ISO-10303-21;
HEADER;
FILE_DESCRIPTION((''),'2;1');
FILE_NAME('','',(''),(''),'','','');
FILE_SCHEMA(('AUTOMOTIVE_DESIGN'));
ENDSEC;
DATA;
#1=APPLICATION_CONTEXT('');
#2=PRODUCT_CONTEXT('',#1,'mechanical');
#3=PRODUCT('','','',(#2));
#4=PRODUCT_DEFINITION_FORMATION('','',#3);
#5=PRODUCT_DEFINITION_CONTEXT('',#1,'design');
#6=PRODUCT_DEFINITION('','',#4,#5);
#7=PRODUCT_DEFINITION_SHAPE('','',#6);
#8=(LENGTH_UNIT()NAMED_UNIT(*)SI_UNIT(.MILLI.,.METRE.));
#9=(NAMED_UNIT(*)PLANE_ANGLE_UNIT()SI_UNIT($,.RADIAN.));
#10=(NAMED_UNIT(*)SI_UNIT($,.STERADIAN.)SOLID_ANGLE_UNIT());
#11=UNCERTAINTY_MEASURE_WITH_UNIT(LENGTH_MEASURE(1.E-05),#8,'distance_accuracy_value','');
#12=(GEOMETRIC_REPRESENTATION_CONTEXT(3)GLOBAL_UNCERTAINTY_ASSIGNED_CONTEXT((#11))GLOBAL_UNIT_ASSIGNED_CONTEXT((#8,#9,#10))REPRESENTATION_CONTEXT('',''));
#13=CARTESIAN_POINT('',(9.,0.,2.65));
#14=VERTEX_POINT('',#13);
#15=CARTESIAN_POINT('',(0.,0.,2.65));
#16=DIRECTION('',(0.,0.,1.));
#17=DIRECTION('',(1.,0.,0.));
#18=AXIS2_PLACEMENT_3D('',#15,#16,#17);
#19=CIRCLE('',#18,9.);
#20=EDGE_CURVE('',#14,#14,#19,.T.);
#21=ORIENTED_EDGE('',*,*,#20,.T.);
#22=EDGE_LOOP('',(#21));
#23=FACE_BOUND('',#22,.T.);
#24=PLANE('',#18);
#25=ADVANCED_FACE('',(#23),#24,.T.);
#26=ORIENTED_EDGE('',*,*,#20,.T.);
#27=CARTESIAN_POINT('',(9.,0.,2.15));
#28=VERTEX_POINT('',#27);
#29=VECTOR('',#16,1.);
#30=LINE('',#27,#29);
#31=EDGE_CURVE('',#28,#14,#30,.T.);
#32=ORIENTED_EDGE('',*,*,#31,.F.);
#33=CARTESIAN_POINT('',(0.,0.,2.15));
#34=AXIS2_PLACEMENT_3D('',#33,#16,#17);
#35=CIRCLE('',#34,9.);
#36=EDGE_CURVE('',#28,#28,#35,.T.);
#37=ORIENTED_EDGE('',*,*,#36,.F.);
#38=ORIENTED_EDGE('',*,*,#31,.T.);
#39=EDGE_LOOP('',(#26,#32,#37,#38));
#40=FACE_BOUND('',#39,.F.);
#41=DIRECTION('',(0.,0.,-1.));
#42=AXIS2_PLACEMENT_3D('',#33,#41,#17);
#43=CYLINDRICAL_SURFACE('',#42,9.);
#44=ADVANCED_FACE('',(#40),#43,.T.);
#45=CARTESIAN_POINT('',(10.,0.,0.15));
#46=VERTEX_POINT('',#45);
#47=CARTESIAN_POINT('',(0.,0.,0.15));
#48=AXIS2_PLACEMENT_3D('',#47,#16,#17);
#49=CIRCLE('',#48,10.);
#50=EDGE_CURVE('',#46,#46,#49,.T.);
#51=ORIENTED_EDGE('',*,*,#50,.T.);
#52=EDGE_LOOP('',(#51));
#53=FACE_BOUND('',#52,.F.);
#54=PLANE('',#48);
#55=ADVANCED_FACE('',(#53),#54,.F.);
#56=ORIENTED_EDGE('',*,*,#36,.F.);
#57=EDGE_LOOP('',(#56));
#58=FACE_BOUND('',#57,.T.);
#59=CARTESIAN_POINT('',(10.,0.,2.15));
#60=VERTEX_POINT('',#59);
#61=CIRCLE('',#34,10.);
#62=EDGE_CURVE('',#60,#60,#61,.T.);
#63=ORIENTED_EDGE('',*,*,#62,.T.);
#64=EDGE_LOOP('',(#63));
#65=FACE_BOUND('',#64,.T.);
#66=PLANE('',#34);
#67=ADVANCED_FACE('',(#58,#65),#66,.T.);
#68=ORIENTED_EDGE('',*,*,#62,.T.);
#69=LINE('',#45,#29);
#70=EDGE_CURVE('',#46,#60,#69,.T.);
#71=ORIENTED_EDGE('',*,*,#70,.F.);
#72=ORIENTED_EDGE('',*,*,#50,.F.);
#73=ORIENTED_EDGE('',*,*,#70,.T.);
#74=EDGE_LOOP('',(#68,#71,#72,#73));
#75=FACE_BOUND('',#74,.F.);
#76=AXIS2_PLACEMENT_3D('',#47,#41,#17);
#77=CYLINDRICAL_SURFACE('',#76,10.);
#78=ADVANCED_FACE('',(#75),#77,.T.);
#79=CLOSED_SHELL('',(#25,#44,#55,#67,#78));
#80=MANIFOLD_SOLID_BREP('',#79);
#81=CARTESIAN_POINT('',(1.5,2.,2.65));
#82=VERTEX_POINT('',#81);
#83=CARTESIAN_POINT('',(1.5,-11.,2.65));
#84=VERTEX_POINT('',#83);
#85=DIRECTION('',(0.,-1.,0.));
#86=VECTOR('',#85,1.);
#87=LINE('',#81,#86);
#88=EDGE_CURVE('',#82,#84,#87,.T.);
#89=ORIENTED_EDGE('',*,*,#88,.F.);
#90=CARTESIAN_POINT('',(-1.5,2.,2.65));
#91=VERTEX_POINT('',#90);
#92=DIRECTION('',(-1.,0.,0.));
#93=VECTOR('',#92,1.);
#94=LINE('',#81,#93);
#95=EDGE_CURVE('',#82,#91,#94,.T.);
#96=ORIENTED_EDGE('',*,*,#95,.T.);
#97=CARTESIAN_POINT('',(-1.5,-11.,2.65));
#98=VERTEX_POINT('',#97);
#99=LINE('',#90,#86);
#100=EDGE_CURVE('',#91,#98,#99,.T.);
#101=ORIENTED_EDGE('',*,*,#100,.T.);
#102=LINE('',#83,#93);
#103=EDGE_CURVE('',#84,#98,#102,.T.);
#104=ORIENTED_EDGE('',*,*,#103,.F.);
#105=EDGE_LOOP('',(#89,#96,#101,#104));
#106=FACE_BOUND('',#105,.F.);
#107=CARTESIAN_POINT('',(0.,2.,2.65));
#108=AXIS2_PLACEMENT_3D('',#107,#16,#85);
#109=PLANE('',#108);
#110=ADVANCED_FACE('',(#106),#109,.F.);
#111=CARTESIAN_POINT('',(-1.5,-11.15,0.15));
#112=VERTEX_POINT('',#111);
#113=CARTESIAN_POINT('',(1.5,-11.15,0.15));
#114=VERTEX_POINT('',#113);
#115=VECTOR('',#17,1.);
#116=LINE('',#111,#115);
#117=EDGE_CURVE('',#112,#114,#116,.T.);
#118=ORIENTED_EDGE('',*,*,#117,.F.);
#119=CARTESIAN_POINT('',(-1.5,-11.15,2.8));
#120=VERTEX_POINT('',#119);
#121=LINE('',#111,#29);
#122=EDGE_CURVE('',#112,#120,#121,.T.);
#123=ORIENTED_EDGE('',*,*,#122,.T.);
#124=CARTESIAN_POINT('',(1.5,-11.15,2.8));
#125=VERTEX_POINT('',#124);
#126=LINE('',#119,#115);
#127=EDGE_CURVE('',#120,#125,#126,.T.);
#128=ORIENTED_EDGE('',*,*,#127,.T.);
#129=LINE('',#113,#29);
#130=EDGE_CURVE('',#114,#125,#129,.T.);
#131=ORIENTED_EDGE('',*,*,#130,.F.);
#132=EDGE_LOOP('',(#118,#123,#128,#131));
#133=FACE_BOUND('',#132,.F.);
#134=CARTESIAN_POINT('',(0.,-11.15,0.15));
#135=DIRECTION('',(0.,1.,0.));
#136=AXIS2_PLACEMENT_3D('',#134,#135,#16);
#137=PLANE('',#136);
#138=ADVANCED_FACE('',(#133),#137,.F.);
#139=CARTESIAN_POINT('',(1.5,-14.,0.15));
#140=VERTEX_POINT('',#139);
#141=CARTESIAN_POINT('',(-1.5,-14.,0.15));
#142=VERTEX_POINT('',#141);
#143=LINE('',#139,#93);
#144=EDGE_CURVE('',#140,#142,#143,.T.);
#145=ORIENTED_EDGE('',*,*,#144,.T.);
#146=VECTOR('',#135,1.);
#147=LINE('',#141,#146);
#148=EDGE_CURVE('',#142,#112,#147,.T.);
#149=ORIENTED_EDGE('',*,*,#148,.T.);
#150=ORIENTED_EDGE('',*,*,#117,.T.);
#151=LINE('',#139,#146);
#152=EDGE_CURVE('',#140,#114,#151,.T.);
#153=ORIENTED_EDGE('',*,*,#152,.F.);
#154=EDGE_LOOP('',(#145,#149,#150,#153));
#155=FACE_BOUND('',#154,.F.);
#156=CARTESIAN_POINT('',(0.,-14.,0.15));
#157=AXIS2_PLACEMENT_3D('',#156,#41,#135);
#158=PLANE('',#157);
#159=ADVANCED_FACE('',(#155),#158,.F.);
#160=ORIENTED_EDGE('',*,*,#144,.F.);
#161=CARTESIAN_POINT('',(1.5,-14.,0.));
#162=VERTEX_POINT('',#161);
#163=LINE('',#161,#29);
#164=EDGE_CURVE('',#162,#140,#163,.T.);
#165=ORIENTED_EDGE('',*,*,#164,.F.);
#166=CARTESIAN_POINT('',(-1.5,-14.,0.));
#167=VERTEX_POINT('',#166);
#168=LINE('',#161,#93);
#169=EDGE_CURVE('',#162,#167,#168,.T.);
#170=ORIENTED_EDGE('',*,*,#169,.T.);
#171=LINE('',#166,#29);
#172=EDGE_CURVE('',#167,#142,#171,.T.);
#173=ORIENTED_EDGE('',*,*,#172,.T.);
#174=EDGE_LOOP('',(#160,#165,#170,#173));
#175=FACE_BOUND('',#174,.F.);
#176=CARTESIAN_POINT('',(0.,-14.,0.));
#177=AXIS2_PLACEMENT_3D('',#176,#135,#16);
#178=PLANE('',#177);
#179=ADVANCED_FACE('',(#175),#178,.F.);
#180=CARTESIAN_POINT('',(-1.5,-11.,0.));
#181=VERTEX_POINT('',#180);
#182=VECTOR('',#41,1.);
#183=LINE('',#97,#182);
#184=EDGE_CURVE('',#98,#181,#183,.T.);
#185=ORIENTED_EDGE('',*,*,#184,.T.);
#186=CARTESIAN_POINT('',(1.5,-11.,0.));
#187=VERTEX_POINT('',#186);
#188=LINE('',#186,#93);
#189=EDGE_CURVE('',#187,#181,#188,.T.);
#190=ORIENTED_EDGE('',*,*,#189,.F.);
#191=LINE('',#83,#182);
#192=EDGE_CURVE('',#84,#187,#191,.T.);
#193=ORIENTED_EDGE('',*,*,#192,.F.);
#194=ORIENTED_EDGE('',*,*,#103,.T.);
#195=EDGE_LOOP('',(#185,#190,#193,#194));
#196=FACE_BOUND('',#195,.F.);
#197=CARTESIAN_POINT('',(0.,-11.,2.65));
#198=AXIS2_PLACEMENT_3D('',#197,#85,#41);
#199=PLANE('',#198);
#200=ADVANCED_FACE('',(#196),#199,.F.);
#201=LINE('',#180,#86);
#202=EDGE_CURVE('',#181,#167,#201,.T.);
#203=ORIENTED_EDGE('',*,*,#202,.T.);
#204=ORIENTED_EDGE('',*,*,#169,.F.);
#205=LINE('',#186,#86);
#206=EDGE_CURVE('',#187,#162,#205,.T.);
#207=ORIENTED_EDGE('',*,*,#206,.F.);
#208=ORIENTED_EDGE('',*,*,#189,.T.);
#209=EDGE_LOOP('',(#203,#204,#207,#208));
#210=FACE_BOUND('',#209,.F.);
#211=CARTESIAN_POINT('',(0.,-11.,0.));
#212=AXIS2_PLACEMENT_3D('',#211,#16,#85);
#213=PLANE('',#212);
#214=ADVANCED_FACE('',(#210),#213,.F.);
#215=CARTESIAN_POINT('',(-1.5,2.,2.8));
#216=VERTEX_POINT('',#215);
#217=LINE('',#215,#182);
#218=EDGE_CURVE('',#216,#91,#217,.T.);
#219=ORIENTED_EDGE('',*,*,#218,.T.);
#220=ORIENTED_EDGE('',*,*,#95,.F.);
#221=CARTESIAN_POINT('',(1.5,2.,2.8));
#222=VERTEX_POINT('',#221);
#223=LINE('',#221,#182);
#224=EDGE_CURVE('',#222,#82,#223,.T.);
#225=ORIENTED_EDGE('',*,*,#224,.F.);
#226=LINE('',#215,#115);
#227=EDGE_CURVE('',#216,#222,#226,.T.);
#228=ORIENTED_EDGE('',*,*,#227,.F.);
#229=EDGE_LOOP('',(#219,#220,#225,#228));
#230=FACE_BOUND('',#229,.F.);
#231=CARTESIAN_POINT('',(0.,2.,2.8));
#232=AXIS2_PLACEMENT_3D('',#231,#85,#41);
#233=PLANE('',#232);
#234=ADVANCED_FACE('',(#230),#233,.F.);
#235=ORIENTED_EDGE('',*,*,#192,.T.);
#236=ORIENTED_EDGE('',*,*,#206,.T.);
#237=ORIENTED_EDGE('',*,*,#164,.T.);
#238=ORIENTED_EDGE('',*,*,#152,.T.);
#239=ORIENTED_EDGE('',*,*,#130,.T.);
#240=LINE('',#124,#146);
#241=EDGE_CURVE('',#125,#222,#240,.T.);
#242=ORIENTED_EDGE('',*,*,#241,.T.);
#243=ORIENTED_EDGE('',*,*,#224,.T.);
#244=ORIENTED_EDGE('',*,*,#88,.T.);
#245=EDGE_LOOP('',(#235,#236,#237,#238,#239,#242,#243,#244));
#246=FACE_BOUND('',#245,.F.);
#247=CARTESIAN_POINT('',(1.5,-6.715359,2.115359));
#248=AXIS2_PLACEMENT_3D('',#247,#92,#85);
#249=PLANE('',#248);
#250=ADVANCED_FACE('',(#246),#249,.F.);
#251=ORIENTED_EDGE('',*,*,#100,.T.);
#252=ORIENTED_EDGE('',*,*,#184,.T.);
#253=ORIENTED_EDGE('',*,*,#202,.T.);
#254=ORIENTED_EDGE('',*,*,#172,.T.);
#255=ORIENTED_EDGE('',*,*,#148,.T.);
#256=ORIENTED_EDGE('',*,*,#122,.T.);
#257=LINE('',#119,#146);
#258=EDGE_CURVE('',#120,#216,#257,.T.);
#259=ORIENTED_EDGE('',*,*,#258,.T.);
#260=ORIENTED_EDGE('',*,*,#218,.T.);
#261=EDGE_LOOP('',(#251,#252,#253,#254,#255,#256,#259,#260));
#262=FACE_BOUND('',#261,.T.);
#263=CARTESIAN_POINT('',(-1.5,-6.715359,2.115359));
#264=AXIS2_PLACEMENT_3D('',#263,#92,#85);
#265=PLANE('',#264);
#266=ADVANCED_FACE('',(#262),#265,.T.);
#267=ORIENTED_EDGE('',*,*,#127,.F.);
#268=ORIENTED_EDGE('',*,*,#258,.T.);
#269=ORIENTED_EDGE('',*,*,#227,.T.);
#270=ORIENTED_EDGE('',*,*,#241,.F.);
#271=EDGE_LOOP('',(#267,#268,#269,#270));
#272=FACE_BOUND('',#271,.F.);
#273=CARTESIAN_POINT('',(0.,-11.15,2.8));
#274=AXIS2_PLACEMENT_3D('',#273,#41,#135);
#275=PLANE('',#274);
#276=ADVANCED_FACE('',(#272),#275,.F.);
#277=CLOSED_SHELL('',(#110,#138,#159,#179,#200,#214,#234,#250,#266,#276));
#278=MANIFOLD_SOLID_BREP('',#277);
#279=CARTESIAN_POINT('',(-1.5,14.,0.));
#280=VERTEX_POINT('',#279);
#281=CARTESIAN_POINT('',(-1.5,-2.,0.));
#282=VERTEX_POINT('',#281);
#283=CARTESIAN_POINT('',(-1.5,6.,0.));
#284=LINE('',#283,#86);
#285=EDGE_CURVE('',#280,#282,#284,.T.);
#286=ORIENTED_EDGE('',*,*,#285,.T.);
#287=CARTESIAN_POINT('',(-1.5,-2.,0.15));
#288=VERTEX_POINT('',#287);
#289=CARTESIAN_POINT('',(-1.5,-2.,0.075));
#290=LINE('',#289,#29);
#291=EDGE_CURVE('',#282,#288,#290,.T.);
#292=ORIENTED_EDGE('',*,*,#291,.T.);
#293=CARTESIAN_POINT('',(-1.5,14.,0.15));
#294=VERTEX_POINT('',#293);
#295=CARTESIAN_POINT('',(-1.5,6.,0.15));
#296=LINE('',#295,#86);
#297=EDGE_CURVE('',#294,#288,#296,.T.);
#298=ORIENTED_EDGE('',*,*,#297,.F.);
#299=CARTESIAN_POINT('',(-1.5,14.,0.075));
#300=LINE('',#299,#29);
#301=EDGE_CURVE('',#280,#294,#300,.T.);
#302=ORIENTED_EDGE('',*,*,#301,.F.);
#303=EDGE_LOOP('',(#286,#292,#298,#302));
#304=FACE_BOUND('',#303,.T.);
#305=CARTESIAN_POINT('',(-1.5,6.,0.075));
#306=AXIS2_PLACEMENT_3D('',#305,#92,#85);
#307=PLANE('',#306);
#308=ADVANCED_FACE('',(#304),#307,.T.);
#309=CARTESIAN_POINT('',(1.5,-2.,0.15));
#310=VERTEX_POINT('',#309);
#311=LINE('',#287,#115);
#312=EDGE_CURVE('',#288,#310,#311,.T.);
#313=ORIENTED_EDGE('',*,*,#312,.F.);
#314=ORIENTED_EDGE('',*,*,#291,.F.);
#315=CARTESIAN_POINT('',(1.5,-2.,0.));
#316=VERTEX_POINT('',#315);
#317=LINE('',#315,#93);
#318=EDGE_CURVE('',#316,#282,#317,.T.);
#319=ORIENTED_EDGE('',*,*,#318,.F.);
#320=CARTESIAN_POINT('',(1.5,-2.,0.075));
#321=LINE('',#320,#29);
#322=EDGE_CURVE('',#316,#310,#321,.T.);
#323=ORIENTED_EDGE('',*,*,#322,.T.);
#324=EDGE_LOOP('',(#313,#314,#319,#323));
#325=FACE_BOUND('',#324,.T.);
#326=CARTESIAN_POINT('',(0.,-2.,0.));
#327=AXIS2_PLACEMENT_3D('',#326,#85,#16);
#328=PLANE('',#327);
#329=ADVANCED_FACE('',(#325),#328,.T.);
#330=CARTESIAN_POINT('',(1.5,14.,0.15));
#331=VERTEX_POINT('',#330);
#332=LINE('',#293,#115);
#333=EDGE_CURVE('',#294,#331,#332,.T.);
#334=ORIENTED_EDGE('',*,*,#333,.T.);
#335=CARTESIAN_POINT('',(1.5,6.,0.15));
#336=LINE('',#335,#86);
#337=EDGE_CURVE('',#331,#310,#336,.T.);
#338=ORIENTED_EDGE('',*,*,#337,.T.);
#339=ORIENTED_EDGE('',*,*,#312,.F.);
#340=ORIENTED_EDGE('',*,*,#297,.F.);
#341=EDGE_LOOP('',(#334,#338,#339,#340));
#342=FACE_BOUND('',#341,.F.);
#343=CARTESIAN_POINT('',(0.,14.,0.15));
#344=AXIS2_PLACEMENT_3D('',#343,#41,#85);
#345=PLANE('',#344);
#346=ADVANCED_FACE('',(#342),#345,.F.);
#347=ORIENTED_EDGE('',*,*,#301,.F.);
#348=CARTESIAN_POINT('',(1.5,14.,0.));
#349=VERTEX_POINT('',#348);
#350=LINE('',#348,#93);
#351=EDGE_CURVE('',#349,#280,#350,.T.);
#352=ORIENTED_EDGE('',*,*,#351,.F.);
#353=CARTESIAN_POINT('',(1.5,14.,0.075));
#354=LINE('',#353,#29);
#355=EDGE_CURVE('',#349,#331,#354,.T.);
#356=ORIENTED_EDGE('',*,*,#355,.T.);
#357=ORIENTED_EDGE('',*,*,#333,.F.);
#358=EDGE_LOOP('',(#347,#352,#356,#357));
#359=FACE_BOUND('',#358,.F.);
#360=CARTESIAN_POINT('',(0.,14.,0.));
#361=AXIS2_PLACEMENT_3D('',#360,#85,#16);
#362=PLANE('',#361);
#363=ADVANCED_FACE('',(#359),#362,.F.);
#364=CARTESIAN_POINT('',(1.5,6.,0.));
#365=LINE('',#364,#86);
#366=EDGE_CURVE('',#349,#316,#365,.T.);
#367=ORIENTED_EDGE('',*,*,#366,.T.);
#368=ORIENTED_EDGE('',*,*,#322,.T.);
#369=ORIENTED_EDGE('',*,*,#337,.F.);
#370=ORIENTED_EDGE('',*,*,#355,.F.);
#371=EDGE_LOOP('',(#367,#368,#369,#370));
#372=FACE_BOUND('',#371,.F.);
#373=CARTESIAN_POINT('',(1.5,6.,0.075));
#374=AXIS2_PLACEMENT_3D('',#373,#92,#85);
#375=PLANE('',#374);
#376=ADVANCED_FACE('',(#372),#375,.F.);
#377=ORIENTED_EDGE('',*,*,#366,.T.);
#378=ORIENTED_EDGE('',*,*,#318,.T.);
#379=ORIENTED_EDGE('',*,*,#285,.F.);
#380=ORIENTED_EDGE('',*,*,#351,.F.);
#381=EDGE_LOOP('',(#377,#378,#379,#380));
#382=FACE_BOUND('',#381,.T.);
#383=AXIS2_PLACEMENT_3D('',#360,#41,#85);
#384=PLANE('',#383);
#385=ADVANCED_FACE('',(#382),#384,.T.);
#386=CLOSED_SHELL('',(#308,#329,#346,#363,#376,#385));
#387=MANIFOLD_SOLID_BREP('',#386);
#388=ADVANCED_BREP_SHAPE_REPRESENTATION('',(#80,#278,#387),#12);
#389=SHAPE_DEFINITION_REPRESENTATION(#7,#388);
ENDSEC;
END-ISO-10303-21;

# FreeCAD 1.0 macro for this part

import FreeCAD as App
import Part
import Sketcher

V = App.Vector

doc = App.newDocument("Part")
body = doc.addObject("PartDesign::Body", "Body")

sketch1 = doc.addObject("Sketcher::SketchObject", "Sketch")
body.addObject(sketch1)
sketch1.AttachmentSupport = (doc.XY_Plane, [""])
sketch1.MapMode = "FlatFace"
sketch1.AttachmentOffset = App.Placement(V(0, 0, 0.15), App.Rotation())
sketch1.addGeometry(Part.Circle(V(0, 0, 0), V(0, 0, 1), 10), False)
sketch1.addConstraint([
    Sketcher.Constraint("Coincident", 0, 3, -1, 1),
    Sketcher.Constraint("Diameter", 0, 20.0),
])
pad1 = doc.addObject("PartDesign::Pad", "Pad")
body.addObject(pad1)
pad1.Profile = sketch1
pad1.Length = 2

sketch2 = doc.addObject("Sketcher::SketchObject", "Sketch001")
body.addObject(sketch2)
sketch2.AttachmentSupport = (doc.XY_Plane, [""])
sketch2.MapMode = "FlatFace"
sketch2.AttachmentOffset = App.Placement(V(0, 0, 2.15), App.Rotation())
sketch2.addGeometry(Part.Circle(V(0, 0, 0), V(0, 0, 1), 9), False)
sketch2.addConstraint([
    Sketcher.Constraint("Coincident", 0, 3, -1, 1),
    Sketcher.Constraint("Diameter", 0, 18.0),
])
pad2 = doc.addObject("PartDesign::Pad", "Pad001")
body.addObject(pad2)
pad2.Profile = sketch2
pad2.Length = 0.5
body2 = doc.addObject("PartDesign::Body", "Body001")
body2.AllowCompound = True

sketch3 = doc.addObject("Sketcher::SketchObject", "Sketch002")
body2.addObject(sketch3)
sketch3.AttachmentSupport = (doc.getObject("YZ_Plane001"), [""])
sketch3.MapMode = "FlatFace"
sketch3.addGeometry([
    Part.LineSegment(V(-2, 2.8, 0), V(-2, 2.65, 0)),
    Part.LineSegment(V(-2, 2.65, 0), V(11, 2.65, 0)),
    Part.LineSegment(V(11, 2.65, 0), V(11, 0, 0)),
    Part.LineSegment(V(11, 0, 0), V(14, 0, 0)),
    Part.LineSegment(V(14, 0, 0), V(14, 0.15, 0)),
    Part.LineSegment(V(14, 0.15, 0), V(11.15, 0.15, 0)),
    Part.LineSegment(V(11.15, 0.15, 0), V(11.15, 2.8, 0)),
    Part.LineSegment(V(11.15, 2.8, 0), V(-2, 2.8, 0)),
    Part.LineSegment(V(-14, 0.15, 0), V(-14, 0, 0)),
    Part.LineSegment(V(-14, 0, 0), V(2, 0, 0)),
    Part.LineSegment(V(2, 0, 0), V(2, 0.15, 0)),
    Part.LineSegment(V(2, 0.15, 0), V(-14, 0.15, 0)),
], False)
sketch3.addConstraint([
    Sketcher.Constraint("Coincident", 0, 2, 1, 1),
    Sketcher.Constraint("Coincident", 1, 2, 2, 1),
    Sketcher.Constraint("Coincident", 2, 2, 3, 1),
    Sketcher.Constraint("Coincident", 3, 2, 4, 1),
    Sketcher.Constraint("Coincident", 4, 2, 5, 1),
    Sketcher.Constraint("Coincident", 5, 2, 6, 1),
    Sketcher.Constraint("Coincident", 6, 2, 7, 1),
    Sketcher.Constraint("Coincident", 7, 2, 0, 1),
    Sketcher.Constraint("Coincident", 8, 2, 9, 1),
    Sketcher.Constraint("Coincident", 9, 2, 10, 1),
    Sketcher.Constraint("Coincident", 10, 2, 11, 1),
    Sketcher.Constraint("Coincident", 11, 2, 8, 1),
    Sketcher.Constraint("Vertical", 0),
    Sketcher.Constraint("Horizontal", 1),
    Sketcher.Constraint("Vertical", 2),
    Sketcher.Constraint("Horizontal", 3),
    Sketcher.Constraint("Vertical", 4),
    Sketcher.Constraint("Horizontal", 5),
    Sketcher.Constraint("Vertical", 6),
    Sketcher.Constraint("Horizontal", 7),
    Sketcher.Constraint("Vertical", 8),
    Sketcher.Constraint("Horizontal", 9),
    Sketcher.Constraint("Vertical", 10),
    Sketcher.Constraint("Horizontal", 11),
    Sketcher.Constraint("Symmetric", 3, 2, 8, 2, -1, 1),
    Sketcher.Constraint("PointOnObject", 2, 2, -1),
    Sketcher.Constraint("Horizontal", 5, 2, 10, 2),
    Sketcher.Constraint("Equal", 0, 4),
    Sketcher.Constraint("DistanceX", 1, 1, 1, 2, 13.0),
    Sketcher.Constraint("DistanceX", 3, 1, 3, 2, 3.0),
    Sketcher.Constraint("DistanceX", 9, 1, 9, 2, 16.0),
    Sketcher.Constraint("DistanceX", 0, 2, -1, 1, 2.0),
    Sketcher.Constraint("DistanceX", 5, 2, 5, 1, 2.85),
    Sketcher.Constraint("DistanceY", 0, 2, 0, 1, 0.15),
    Sketcher.Constraint("DistanceY", 2, 2, 2, 1, 2.65),
])
pad3 = doc.addObject("PartDesign::Pad", "Pad002")
body2.addObject(pad3)
pad3.Profile = sketch3
pad3.Length = 3
pad3.Midplane = True
body3 = doc.addObject("PartDesign::Body", "Body002")
body3.AllowCompound = True
doc.recompute()

body2.Placement = App.Placement(V(0, 0, 0), App.Rotation(V(0, 0, 1), 180))
boolean = doc.addObject("PartDesign::Boolean", "Boolean")
body3.addObject(boolean)
boolean.Type = "Fuse"
boolean.addObjects([body2])

doc.recompute()
